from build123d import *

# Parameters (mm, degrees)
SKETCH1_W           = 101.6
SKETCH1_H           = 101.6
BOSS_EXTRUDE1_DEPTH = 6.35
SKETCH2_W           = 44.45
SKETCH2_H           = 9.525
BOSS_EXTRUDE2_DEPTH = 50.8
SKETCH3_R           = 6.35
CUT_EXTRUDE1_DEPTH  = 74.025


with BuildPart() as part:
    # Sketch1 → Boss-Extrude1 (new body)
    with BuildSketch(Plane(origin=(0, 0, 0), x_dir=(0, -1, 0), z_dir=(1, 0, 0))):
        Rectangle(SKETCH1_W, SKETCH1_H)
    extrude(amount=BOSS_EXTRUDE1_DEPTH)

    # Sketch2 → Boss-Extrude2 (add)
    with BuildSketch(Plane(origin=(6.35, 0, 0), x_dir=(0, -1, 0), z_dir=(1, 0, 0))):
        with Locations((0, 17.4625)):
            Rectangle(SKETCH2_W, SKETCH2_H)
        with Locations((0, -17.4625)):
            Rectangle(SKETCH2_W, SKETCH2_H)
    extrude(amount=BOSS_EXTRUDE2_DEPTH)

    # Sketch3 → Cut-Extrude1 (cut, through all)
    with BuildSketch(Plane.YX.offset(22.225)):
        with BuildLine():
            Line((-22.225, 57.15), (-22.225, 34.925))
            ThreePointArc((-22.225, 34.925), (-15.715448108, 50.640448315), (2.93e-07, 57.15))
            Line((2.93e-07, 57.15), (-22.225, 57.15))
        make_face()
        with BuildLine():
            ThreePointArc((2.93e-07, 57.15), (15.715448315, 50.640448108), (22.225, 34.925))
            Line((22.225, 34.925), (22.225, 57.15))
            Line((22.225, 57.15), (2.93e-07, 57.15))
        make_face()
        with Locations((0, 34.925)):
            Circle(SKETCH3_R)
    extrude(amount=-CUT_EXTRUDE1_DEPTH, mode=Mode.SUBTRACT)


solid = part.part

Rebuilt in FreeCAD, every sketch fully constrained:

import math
import FreeCAD as App
import Part
import Sketcher
from FreeCAD import Vector
Q = App.Units.Quantity

doc = App.newDocument("Part")
body = doc.addObject("PartDesign::Body", "Body")

# Sketch on YZ plane
sketch1 = body.newObject("Sketcher::SketchObject", "Sketch")
sketch1.AttachmentSupport = (doc.getObject("YZ_Plane"), [""])
sketch1.MapMode = "FlatFace"
sketch1.addGeometry([
    Part.LineSegment(Vector(51, -51, 0), Vector(51, 51, 0)),
    Part.LineSegment(Vector(51, 51, 0), Vector(-51, 51, 0)),
    Part.LineSegment(Vector(-51, 51, 0), Vector(-51, -51, 0)),
    Part.LineSegment(Vector(-51, -51, 0), Vector(51, -51, 0)),
], False)
sketch1.addConstraint([
    Sketcher.Constraint("Coincident", 0, 2, 1, 1),
    Sketcher.Constraint("Coincident", 1, 2, 2, 1),
    Sketcher.Constraint("Coincident", 2, 2, 3, 1),
    Sketcher.Constraint("Coincident", 3, 2, 0, 1),
    Sketcher.Constraint("Vertical", 0),
    Sketcher.Constraint("Horizontal", 1),
    Sketcher.Constraint("Vertical", 2),
    Sketcher.Constraint("Horizontal", 3),
    Sketcher.Constraint("Symmetric", 0, 2, 2, 2, -1, 1),
    Sketcher.Constraint("Equal", 3, 0),
    Sketcher.Constraint("DistanceX", 1, 2, 1, 1, Q("4 in")),
])
pad1 = body.newObject("PartDesign::Pad", "Pad")
pad1.Profile = sketch1
pad1.Length = Q("0.25 in")

# Sketch on YZ plane
sketch2 = body.newObject("Sketcher::SketchObject", "Sketch001")
sketch2.AttachmentSupport = (doc.getObject("YZ_Plane"), [""])
sketch2.MapMode = "FlatFace"
sketch2.AttachmentOffset = App.Placement(Vector(0, 0, 0.25 * 25.4), App.Rotation())
sketch2.addGeometry([
    Part.LineSegment(Vector(22, -22, 0), Vector(22, -13, 0)),  # 0
    Part.LineSegment(Vector(22, -13, 0), Vector(-22, -13, 0)),  # 1
    Part.LineSegment(Vector(-22, -13, 0), Vector(-22, -22, 0)),  # 2
    Part.LineSegment(Vector(-22, -22, 0), Vector(22, -22, 0)),  # 3
    Part.LineSegment(Vector(22, 13, 0), Vector(22, 22, 0)),  # 4
    Part.LineSegment(Vector(22, 22, 0), Vector(-22, 22, 0)),  # 5
    Part.LineSegment(Vector(-22, 22, 0), Vector(-22, 13, 0)),  # 6
    Part.LineSegment(Vector(-22, 13, 0), Vector(22, 13, 0)),  # 7
], False)
sketch2.addConstraint([
    Sketcher.Constraint("Coincident", 0, 2, 1, 1),
    Sketcher.Constraint("Coincident", 1, 2, 2, 1),
    Sketcher.Constraint("Coincident", 2, 2, 3, 1),
    Sketcher.Constraint("Coincident", 3, 2, 0, 1),
    Sketcher.Constraint("Coincident", 4, 2, 5, 1),
    Sketcher.Constraint("Coincident", 5, 2, 6, 1),
    Sketcher.Constraint("Coincident", 6, 2, 7, 1),
    Sketcher.Constraint("Coincident", 7, 2, 4, 1),
    Sketcher.Constraint("Vertical", 0),
    Sketcher.Constraint("Horizontal", 1),
    Sketcher.Constraint("Vertical", 2),
    Sketcher.Constraint("Horizontal", 3),
    Sketcher.Constraint("Vertical", 4),
    Sketcher.Constraint("Horizontal", 5),
    Sketcher.Constraint("Vertical", 6),
    Sketcher.Constraint("Horizontal", 7),
    Sketcher.Constraint("Symmetric", 2, 2, 4, 2, -1, 1),
    Sketcher.Constraint("Symmetric", 0, 2, 6, 2, -1, 1),
    Sketcher.Constraint("Vertical", 3, 2, 4, 2),
    Sketcher.Constraint("DistanceY", 1, 2, 6, 2, Q("1 in")),
    Sketcher.Constraint("DistanceX", 1, 2, 1, 1, Q("1.75 in")),
    Sketcher.Constraint("DistanceY", 0, 1, 0, 2, Q("0.375 in")),
])
pad2 = body.newObject("PartDesign::Pad", "Pad001")
pad2.Profile = sketch2
pad2.Length = Q("2 in")

# Sketch on XY plane
sketch3 = body.newObject("Sketcher::SketchObject", "Sketch002")
sketch3.AttachmentSupport = (doc.getObject("XY_Plane"), [""])
sketch3.MapMode = "FlatFace"
sketch3.AttachmentOffset = App.Placement(Vector(0, 0, -0.875 * 25.4), App.Rotation())
sketch3.addGeometry([
    Part.LineSegment(Vector(57, -22, 0), Vector(35, -22, 0)),  # 0
    Part.ArcOfCircle(Part.Circle(Vector(35, 0, 0), Vector(0, 0, 1), 22), math.radians(-90), math.radians(0)),  # 1
    Part.LineSegment(Vector(57, 0, 0), Vector(57, -22, 0)),  # 2
    Part.ArcOfCircle(Part.Circle(Vector(35, 0, 0), Vector(0, 0, 1), 22), math.radians(0), math.radians(90)),  # 3
    Part.LineSegment(Vector(35, 22, 0), Vector(57, 22, 0)),  # 4
    Part.LineSegment(Vector(57, 22, 0), Vector(57, 0, 0)),  # 5
    Part.Circle(Vector(35, 0, 0), Vector(0, 0, 1), 6),  # 6
], False)
sketch3.addConstraint([
    Sketcher.Constraint("Tangent", 0, 2, 1, 1),
    Sketcher.Constraint("Tangent", 1, 2, 2, 1),
    Sketcher.Constraint("Coincident", 2, 2, 0, 1),
    Sketcher.Constraint("Tangent", 3, 2, 4, 1),
    Sketcher.Constraint("Coincident", 4, 2, 5, 1),
    Sketcher.Constraint("Tangent", 5, 2, 3, 1),
    Sketcher.Constraint("Horizontal", 0),
    Sketcher.Constraint("Vertical", 2),
    Sketcher.Constraint("Horizontal", 4),
    Sketcher.Constraint("Vertical", 5),
    Sketcher.Constraint("Coincident", 3, 3, 1, 3),
    Sketcher.Constraint("Coincident", 6, 3, 1, 3),
    Sketcher.Constraint("Equal", 1, 3),
    Sketcher.Constraint("PointOnObject", 1, 3, -1),
    Sketcher.Constraint("Diameter", 6, Q("0.5 in")),
    Sketcher.Constraint("Radius", 1, Q("0.875 in")),
    Sketcher.Constraint("DistanceX", -1, 1, 1, 2, Q("2.25 in")),
])
pocket1 = body.newObject("PartDesign::Pocket", "Pocket")
pocket1.Profile = sketch3
pocket1.Type = "ThroughAll"
pocket1.Reversed = True

doc.recompute()
